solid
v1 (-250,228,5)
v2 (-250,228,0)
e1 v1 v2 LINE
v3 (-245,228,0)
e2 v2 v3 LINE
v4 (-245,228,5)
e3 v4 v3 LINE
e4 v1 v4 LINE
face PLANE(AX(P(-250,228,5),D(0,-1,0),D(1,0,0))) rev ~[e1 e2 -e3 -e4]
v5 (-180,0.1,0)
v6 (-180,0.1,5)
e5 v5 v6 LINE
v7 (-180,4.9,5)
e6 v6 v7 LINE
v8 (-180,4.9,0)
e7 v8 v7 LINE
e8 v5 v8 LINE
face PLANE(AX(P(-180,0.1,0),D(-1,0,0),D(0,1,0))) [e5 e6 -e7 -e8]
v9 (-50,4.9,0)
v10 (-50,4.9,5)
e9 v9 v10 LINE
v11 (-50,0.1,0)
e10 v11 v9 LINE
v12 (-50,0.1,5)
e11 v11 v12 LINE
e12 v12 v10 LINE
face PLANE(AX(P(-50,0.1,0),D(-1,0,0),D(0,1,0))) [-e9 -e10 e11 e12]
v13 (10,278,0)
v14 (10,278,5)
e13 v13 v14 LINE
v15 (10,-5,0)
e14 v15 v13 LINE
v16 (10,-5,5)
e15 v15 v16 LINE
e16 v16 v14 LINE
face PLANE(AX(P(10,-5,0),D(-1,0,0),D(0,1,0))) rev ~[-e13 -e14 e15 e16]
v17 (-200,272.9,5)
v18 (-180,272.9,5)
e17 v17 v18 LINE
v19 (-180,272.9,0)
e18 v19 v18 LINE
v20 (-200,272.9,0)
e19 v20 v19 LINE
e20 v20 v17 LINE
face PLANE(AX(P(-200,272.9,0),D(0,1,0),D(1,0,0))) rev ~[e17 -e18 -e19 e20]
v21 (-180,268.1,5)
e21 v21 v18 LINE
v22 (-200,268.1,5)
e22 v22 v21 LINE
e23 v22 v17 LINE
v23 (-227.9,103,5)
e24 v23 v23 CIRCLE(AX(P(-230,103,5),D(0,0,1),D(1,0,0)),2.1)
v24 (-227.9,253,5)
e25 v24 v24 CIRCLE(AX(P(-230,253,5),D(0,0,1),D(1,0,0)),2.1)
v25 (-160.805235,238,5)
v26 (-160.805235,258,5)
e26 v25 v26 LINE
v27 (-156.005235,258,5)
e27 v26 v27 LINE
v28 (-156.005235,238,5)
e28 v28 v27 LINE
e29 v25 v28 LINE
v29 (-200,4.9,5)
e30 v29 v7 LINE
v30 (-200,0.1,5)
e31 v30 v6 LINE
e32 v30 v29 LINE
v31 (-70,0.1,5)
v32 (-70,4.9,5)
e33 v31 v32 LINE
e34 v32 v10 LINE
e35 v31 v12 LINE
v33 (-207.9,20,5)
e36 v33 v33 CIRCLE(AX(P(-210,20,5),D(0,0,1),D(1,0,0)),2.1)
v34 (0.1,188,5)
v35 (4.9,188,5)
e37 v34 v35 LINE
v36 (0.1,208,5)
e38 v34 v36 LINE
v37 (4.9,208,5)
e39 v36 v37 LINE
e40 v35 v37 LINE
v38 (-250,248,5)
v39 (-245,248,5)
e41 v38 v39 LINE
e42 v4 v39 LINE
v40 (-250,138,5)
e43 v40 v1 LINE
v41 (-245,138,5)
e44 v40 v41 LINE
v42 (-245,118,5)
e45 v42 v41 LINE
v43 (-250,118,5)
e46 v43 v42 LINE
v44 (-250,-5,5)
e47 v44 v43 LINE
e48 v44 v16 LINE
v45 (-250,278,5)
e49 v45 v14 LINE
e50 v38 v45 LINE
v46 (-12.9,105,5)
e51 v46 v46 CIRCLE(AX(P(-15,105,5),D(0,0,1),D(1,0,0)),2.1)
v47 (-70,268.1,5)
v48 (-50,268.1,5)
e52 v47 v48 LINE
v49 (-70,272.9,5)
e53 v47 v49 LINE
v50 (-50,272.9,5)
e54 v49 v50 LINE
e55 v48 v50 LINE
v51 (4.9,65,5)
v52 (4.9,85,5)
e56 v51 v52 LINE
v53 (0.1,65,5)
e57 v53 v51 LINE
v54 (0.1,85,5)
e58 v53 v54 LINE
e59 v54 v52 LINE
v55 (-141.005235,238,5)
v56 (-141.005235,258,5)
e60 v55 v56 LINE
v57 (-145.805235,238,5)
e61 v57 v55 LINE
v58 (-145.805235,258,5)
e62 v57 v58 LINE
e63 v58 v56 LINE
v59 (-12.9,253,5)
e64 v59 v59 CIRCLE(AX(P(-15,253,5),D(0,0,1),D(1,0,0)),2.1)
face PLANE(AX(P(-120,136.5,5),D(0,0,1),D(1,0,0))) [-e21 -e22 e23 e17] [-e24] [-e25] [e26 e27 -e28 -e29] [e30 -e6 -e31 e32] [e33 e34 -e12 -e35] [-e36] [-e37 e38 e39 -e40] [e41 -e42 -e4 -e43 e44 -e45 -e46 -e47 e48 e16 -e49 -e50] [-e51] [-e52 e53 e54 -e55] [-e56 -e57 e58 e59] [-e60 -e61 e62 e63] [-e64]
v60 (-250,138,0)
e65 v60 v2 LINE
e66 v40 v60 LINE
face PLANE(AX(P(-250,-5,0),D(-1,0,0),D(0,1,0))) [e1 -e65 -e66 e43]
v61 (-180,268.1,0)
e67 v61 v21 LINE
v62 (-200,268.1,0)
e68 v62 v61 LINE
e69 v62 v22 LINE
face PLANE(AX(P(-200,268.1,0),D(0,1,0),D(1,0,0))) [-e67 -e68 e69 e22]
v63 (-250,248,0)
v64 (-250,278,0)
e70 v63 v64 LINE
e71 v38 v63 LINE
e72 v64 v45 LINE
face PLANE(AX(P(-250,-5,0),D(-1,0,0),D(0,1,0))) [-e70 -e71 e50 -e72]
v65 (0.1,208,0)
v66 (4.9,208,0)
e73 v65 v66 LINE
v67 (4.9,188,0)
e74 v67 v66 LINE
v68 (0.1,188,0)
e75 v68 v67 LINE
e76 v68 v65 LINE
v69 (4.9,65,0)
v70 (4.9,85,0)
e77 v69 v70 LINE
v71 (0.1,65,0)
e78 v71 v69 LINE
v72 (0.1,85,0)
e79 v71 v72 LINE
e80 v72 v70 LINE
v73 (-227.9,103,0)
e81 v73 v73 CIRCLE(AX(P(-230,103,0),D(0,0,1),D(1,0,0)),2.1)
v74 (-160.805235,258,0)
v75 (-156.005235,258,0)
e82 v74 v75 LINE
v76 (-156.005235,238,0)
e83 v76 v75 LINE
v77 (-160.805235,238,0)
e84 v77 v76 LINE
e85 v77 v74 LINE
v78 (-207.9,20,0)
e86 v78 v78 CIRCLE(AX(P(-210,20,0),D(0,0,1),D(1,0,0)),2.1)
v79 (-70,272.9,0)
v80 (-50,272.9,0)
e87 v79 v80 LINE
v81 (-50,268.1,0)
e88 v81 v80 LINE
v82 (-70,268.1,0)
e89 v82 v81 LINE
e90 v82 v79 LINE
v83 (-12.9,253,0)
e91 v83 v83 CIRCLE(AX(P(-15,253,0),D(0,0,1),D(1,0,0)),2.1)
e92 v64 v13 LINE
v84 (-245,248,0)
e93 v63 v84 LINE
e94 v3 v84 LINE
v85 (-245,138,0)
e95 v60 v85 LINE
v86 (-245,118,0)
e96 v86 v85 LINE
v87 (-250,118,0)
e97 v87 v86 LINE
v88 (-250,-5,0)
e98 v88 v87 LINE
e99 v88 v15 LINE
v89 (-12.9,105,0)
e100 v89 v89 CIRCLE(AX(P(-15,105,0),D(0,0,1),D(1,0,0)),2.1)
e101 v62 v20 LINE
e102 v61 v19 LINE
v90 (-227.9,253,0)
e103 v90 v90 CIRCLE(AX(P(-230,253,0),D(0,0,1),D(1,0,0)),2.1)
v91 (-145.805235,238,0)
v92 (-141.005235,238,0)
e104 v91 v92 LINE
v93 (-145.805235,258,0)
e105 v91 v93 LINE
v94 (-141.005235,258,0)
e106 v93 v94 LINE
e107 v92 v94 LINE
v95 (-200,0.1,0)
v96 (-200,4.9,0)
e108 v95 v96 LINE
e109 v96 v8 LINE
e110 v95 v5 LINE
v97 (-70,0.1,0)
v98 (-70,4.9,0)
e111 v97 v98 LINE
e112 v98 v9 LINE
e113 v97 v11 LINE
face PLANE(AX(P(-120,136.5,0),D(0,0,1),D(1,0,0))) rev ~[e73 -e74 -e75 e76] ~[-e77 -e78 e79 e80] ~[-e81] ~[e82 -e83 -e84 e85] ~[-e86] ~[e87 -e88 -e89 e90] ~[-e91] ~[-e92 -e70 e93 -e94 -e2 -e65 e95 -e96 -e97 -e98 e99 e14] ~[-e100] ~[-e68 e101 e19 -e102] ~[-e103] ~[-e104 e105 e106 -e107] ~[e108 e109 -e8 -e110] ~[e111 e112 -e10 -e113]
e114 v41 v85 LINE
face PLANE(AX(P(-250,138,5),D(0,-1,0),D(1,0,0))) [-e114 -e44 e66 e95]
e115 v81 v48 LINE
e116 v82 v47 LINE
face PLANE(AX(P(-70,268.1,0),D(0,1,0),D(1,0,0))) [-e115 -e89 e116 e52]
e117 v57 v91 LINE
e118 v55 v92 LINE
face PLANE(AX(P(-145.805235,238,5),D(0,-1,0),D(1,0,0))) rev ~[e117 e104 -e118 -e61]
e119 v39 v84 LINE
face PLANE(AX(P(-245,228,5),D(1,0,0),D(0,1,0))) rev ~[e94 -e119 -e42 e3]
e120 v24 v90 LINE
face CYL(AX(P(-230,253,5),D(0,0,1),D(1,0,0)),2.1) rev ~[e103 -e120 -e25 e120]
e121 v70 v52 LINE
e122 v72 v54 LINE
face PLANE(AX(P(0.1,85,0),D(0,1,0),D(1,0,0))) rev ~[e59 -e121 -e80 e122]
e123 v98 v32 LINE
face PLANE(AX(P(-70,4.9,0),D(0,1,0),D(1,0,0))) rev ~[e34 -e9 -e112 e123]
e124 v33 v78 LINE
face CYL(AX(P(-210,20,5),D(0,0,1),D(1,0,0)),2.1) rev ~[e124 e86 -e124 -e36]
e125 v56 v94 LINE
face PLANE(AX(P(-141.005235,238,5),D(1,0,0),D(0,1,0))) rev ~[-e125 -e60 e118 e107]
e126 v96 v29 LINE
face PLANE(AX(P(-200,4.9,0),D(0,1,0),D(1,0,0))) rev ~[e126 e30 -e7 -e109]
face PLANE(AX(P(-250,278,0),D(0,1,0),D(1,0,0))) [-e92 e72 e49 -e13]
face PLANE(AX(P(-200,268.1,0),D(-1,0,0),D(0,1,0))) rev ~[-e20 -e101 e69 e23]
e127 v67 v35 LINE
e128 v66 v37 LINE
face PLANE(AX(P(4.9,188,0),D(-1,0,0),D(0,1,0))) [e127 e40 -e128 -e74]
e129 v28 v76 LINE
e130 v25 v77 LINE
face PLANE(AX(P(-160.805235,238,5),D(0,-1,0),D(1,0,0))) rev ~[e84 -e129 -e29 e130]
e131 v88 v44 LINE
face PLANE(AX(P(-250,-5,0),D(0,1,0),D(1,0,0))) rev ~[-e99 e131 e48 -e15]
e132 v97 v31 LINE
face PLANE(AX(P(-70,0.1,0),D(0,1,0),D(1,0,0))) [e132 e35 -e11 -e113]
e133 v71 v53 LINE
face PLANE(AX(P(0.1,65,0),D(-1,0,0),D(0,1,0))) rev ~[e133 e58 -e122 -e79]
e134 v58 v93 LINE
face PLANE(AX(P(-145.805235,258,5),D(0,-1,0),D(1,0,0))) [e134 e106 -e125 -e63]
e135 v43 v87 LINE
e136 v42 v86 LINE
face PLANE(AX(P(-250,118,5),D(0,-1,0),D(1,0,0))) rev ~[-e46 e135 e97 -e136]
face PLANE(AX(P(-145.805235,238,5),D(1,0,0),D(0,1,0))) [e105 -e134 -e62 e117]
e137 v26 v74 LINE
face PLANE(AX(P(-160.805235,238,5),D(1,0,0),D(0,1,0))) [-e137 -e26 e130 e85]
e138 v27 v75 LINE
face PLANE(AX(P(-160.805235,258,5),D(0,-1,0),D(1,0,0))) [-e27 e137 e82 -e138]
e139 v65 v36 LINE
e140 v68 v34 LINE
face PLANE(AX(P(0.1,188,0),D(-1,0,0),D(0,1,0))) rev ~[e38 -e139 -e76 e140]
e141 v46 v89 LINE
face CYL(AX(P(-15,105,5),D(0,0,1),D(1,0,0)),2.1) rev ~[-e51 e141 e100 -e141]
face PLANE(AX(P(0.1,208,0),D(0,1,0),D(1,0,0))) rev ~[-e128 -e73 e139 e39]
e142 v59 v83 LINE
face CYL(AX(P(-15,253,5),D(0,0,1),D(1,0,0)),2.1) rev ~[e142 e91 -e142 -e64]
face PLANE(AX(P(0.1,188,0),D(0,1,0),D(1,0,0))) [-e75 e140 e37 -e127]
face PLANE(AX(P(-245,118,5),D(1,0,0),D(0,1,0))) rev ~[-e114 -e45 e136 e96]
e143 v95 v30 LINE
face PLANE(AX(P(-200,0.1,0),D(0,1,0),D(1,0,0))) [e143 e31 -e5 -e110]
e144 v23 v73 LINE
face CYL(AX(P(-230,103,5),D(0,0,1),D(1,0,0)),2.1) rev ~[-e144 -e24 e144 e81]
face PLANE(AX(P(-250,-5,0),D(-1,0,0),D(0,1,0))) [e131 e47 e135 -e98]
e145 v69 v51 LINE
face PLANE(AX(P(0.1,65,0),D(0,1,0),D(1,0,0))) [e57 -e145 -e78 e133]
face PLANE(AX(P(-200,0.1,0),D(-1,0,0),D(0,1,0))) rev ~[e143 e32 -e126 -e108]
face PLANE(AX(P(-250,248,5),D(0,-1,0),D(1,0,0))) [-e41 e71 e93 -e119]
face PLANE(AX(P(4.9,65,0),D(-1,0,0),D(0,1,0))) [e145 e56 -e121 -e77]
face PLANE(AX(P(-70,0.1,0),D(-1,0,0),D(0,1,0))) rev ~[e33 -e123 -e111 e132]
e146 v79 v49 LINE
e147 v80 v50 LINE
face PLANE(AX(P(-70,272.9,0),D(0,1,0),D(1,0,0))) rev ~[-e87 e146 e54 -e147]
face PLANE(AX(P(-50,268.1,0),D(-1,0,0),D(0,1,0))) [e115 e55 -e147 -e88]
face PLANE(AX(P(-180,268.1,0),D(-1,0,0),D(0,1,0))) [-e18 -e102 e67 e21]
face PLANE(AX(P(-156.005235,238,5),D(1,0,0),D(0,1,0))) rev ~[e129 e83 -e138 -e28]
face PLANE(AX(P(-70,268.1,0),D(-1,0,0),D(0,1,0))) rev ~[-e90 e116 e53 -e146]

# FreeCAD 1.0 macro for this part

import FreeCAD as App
import Part
import Sketcher
Q = App.Units.Quantity


def add_polygon(sketch, points):
    """Adds a closed chain of lines whose ends are joined by coincident constraints."""
    first, n = sketch.GeometryCount, len(points)
    for a, b in zip(points, points[1:] + points[:1]):
        sketch.addGeometry(Part.LineSegment(App.Vector(*a, 0), App.Vector(*b, 0)), False)
    for i in range(n):
        sketch.addConstraint(Sketcher.Constraint("Coincident", first + i, 2, first + (i + 1) % n, 1))

doc = App.newDocument("Part")
body = doc.addObject("PartDesign::Body", "Body")

sketch1 = body.newObject("Sketcher::SketchObject", "Sketch")
sketch1.AttachmentSupport = (doc.getObject("XY_Plane"), [""])
sketch1.MapMode = "FlatFace"
add_polygon(sketch1, [(-250, 278), (-250, -5), (10, -5), (10, 278)])
add_polygon(sketch1, [(-180, 0.1), (-200, 0.1), (-200, 4.9), (-180, 4.9)])
add_polygon(sketch1, [(-50, 0.1), (-70, 0.1), (-70, 4.9), (-50, 4.9)])
add_polygon(sketch1, [(4.9, 65), (0.1, 65), (0.1, 85), (4.9, 85)])
add_polygon(sketch1, [(-180, 268.1), (-200, 268.1), (-200, 272.9), (-180, 272.9)])
add_polygon(sketch1, [(4.9, 188), (0.1, 188), (0.1, 208), (4.9, 208)])
add_polygon(sketch1, [(-50, 268.1), (-70, 268.1), (-70, 272.9), (-50, 272.9)])
sketch1.addConstraint([
    Sketcher.Constraint("Vertical", 0),
    Sketcher.Constraint("Horizontal", 1),
    Sketcher.Constraint("Vertical", 2),
    Sketcher.Constraint("Horizontal", 3),
    Sketcher.Constraint("Horizontal", 4),
    Sketcher.Constraint("Vertical", 5),
    Sketcher.Constraint("Horizontal", 6),
    Sketcher.Constraint("Vertical", 7),
    Sketcher.Constraint("Horizontal", 8),
    Sketcher.Constraint("Vertical", 9),
    Sketcher.Constraint("Horizontal", 10),
    Sketcher.Constraint("Vertical", 11),
    Sketcher.Constraint("Horizontal", 12),
    Sketcher.Constraint("Vertical", 13),
    Sketcher.Constraint("Horizontal", 14),
    Sketcher.Constraint("Vertical", 15),
    Sketcher.Constraint("Horizontal", 16),
    Sketcher.Constraint("Vertical", 17),
    Sketcher.Constraint("Horizontal", 18),
    Sketcher.Constraint("Vertical", 19),
    Sketcher.Constraint("Horizontal", 20),
    Sketcher.Constraint("Vertical", 21),
    Sketcher.Constraint("Horizontal", 22),
    Sketcher.Constraint("Vertical", 23),
    Sketcher.Constraint("Horizontal", 24),
    Sketcher.Constraint("Vertical", 25),
    Sketcher.Constraint("Horizontal", 26),
    Sketcher.Constraint("Vertical", 27),
    Sketcher.Constraint("Horizontal", 7, 2, 8, 2),
    Sketcher.Constraint("Horizontal", 6, 2, 9, 2),
    Sketcher.Constraint("Horizontal", 19, 2, 24, 2),
    Sketcher.Constraint("Horizontal", 18, 2, 25, 2),
    Sketcher.Constraint("Vertical", 5, 2, 16, 2),
    Sketcher.Constraint("Vertical", 7, 2, 18, 2),
    Sketcher.Constraint("Vertical", 13, 2, 20, 2),
    Sketcher.Constraint("Vertical", 15, 2, 22, 2),
    Sketcher.Constraint("Vertical", 9, 2, 24, 2),
    Sketcher.Constraint("Vertical", 11, 2, 26, 2),
    Sketcher.Constraint("Equal", 6, 8),
    Sketcher.Constraint("Equal", 22, 5),
    Sketcher.Constraint("Equal", 26, 13),
    Sketcher.Constraint("Equal", 11, 17),
    Sketcher.Constraint("Equal", 15, 21),
    Sketcher.Constraint("DistanceX", 1, 1, 1, 2, Q("260 mm")),
    Sketcher.Constraint("DistanceX", 4, 2, 4, 1, Q("20 mm")),
    Sketcher.Constraint("DistanceY", 0, 2, 0, 1, Q("283 mm")),
    Sketcher.Constraint("DistanceX", 12, 2, 12, 1, Q("4.8 mm")),
    Sketcher.Constraint("DistanceX", 0, 2, -1, 1, Q("250 mm")),
    Sketcher.Constraint("DistanceY", 0, 2, -1, 1, Q("5 mm")),
    Sketcher.Constraint("DistanceX", 4, 2, -1, 1, Q("200 mm")),
    Sketcher.Constraint("DistanceX", 8, 2, -1, 1, Q("70 mm")),
    Sketcher.Constraint("DistanceY", -1, 1, 12, 2, Q("65 mm")),
    Sketcher.Constraint("DistanceY", -1, 1, 20, 2, Q("188 mm")),
    Sketcher.Constraint("DistanceY", 4, 2, 16, 2, Q("268 mm")),
    Sketcher.Constraint("DistanceY", -1, 1, 4, 2, Q("0.1 mm")),
    Sketcher.Constraint("DistanceX", -1, 1, 12, 2, Q("0.1 mm")),
])
pad1 = body.newObject("PartDesign::Pad", "Pad")
pad1.Profile = sketch1
pad1.Length = 5

sketch2 = body.newObject("Sketcher::SketchObject", "Sketch001")
sketch2.AttachmentSupport = (doc.getObject("XY_Plane"), [""])
sketch2.MapMode = "FlatFace"
sketch2.AttachmentOffset = App.Placement(App.Vector(0, 0, 5), App.Rotation())
add_polygon(sketch2, [(-145.8, 258), (-145.8, 238), (-141, 238), (-141, 258)])
add_polygon(sketch2, [(-160.8, 258), (-160.8, 238), (-156, 238), (-156, 258)])
sketch2.addConstraint([
    Sketcher.Constraint("Vertical", 0),
    Sketcher.Constraint("Horizontal", 1),
    Sketcher.Constraint("Vertical", 2),
    Sketcher.Constraint("Horizontal", 3),
    Sketcher.Constraint("Vertical", 4),
    Sketcher.Constraint("Horizontal", 5),
    Sketcher.Constraint("Vertical", 6),
    Sketcher.Constraint("Horizontal", 7),
    Sketcher.Constraint("Horizontal", 1, 2, 4, 2),
    Sketcher.Constraint("Horizontal", 3, 2, 6, 2),
    Sketcher.Constraint("Equal", 3, 5),
    Sketcher.Constraint("DistanceY", 0, 2, 0, 1, Q("20 mm")),
    Sketcher.Constraint("DistanceX", 1, 1, 1, 2, Q("4.8 mm")),
    Sketcher.Constraint("DistanceY", -1, 1, 0, 2, Q("238 mm")),
    Sketcher.Constraint("DistanceX", 4, 2, 0, 2, Q("15 mm")),
    Sketcher.Constraint("DistanceX", 0, 2, -1, 1, Q("145.805235 mm")),
])
pocket1 = body.newObject("PartDesign::Pocket", "Pocket")
pocket1.Profile = sketch2
pocket1.Length = 5

sketch3 = body.newObject("Sketcher::SketchObject", "Sketch002")
sketch3.AttachmentSupport = (doc.getObject("XY_Plane"), [""])
sketch3.MapMode = "FlatFace"
sketch3.AttachmentOffset = App.Placement(App.Vector(0, 0, 5), App.Rotation())
sketch3.addGeometry([
    Part.Circle(App.Vector(-230, 253, 0), App.Vector(0, 0, 1), 2.1),
    Part.Circle(App.Vector(-15, 253, 0), App.Vector(0, 0, 1), 2.1),
], False)
sketch3.addConstraint([
    Sketcher.Constraint("Equal", 0, 1),
    Sketcher.Constraint("Horizontal", 0, 3, 1, 3),
    Sketcher.Constraint("Diameter", 0, Q("4.2 mm")),
    Sketcher.Constraint("DistanceX", 0, 3, -1, 1, Q("230 mm")),
    Sketcher.Constraint("DistanceY", -1, 1, 0, 3, Q("253 mm")),
    Sketcher.Constraint("DistanceX", 1, 3, -1, 1, Q("15 mm")),
])
pocket2 = body.newObject("PartDesign::Pocket", "Pocket001")
pocket2.Profile = sketch3
pocket2.Length = 5

sketch4 = body.newObject("Sketcher::SketchObject", "Sketch003")
sketch4.AttachmentSupport = (doc.getObject("XY_Plane"), [""])
sketch4.MapMode = "FlatFace"
sketch4.AttachmentOffset = App.Placement(App.Vector(0, 0, 5), App.Rotation())
sketch4.addGeometry(Part.Circle(App.Vector(-210, 20, 0), App.Vector(0, 0, 1), 2.1), False)
sketch4.addConstraint([
    Sketcher.Constraint("Diameter", 0, Q("4.2 mm")),
    Sketcher.Constraint("DistanceX", 0, 3, -1, 1, Q("210 mm")),
    Sketcher.Constraint("DistanceY", -1, 1, 0, 3, Q("20 mm")),
])
pocket3 = body.newObject("PartDesign::Pocket", "Pocket002")
pocket3.Profile = sketch4
pocket3.Length = 5

sketch5 = body.newObject("Sketcher::SketchObject", "Sketch004")
sketch5.AttachmentSupport = (doc.getObject("XY_Plane"), [""])
sketch5.MapMode = "FlatFace"
sketch5.AttachmentOffset = App.Placement(App.Vector(0, 0, 5), App.Rotation())
sketch5.addGeometry(Part.Circle(App.Vector(-15, 105, 0), App.Vector(0, 0, 1), 2.1), False)
sketch5.addConstraint([
    Sketcher.Constraint("Diameter", 0, Q("4.2 mm")),
    Sketcher.Constraint("DistanceX", 0, 3, -1, 1, Q("15 mm")),
    Sketcher.Constraint("DistanceY", -1, 1, 0, 3, Q("105 mm")),
])
pocket4 = body.newObject("PartDesign::Pocket", "Pocket003")
pocket4.Profile = sketch5
pocket4.Length = 5

sketch6 = body.newObject("Sketcher::SketchObject", "Sketch005")
sketch6.AttachmentSupport = (doc.getObject("XY_Plane"), [""])
sketch6.MapMode = "FlatFace"
sketch6.AttachmentOffset = App.Placement(App.Vector(0, 0, 5), App.Rotation())
sketch6.addGeometry(Part.Circle(App.Vector(-230, 103, 0), App.Vector(0, 0, 1), 2.1), False)
sketch6.addConstraint([
    Sketcher.Constraint("Diameter", 0, Q("4.2 mm")),
    Sketcher.Constraint("DistanceX", 0, 3, -1, 1, Q("230 mm")),
    Sketcher.Constraint("DistanceY", -1, 1, 0, 3, Q("103 mm")),
])
pocket5 = body.newObject("PartDesign::Pocket", "Pocket004")
pocket5.Profile = sketch6
pocket5.Length = 5

sketch7 = body.newObject("Sketcher::SketchObject", "Sketch006")
sketch7.AttachmentSupport = (doc.getObject("XY_Plane"), [""])
sketch7.MapMode = "FlatFace"
sketch7.AttachmentOffset = App.Placement(App.Vector(0, 0, 5), App.Rotation())
add_polygon(sketch7, [(-250, 248), (-250, 228), (-245, 228), (-245, 248)])
add_polygon(sketch7, [(-250, 138), (-250, 118), (-245, 118), (-245, 138)])
sketch7.addConstraint([
    Sketcher.Constraint("Vertical", 0),
    Sketcher.Constraint("Horizontal", 1),
    Sketcher.Constraint("Vertical", 2),
    Sketcher.Constraint("Horizontal", 3),
    Sketcher.Constraint("Vertical", 4),
    Sketcher.Constraint("Horizontal", 5),
    Sketcher.Constraint("Vertical", 6),
    Sketcher.Constraint("Horizontal", 7),
    Sketcher.Constraint("Vertical", 3, 2, 4, 2),
    Sketcher.Constraint("Vertical", 2, 2, 5, 2),
    Sketcher.Constraint("Equal", 2, 4),
    Sketcher.Constraint("DistanceX", 1, 1, 1, 2, Q("5 mm")),
    Sketcher.Constraint("DistanceY", 0, 2, 0, 1, Q("20 mm")),
    Sketcher.Constraint("DistanceX", 0, 2, -1, 1, Q("250 mm")),
    Sketcher.Constraint("DistanceY", -1, 1, 0, 2, Q("228 mm")),
    Sketcher.Constraint("DistanceY", -1, 1, 4, 2, Q("118 mm")),
])
pocket6 = body.newObject("PartDesign::Pocket", "Pocket005")
pocket6.Profile = sketch7
pocket6.Length = 10

doc.recompute()
